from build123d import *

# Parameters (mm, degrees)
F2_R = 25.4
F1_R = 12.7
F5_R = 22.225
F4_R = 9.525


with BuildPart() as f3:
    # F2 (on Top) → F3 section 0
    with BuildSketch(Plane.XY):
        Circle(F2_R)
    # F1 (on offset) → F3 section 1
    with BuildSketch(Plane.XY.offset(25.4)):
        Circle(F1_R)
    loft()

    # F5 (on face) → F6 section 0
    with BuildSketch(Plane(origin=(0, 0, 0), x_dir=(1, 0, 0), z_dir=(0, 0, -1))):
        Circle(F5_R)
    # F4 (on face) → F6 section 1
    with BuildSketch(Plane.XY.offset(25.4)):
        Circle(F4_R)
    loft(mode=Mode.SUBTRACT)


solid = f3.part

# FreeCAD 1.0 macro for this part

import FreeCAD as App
import Part
import Sketcher
Q = App.Units.Quantity

doc = App.newDocument("Part")
body = doc.addObject("PartDesign::Body", "Body")

# Sketch on XY plane
sketch1 = body.newObject("Sketcher::SketchObject", "Sketch")
sketch1.AttachmentSupport = (doc.getObject("XY_Plane"), [""])
sketch1.MapMode = "FlatFace"
sketch1.addGeometry(Part.Circle(App.Vector(0, 0, 0), App.Vector(0, 0, 1), 25), False)
sketch1.addConstraint(Sketcher.Constraint("Coincident", 0, 3, -1, 1))
sketch1.addConstraint(Sketcher.Constraint("Diameter", 0, Q("2 in")))

# Sketch on XY plane
sketch2 = body.newObject("Sketcher::SketchObject", "Sketch001")
sketch2.AttachmentSupport = (doc.getObject("XY_Plane"), [""])
sketch2.MapMode = "FlatFace"
sketch2.AttachmentOffset = App.Placement(App.Vector(0, 0, 1 * 25.4), App.Rotation())
sketch2.addGeometry(Part.Circle(App.Vector(0, 0, 0), App.Vector(0, 0, 1), 13), False)
sketch2.addConstraint(Sketcher.Constraint("Coincident", 0, 3, -1, 1))
sketch2.addConstraint(Sketcher.Constraint("Diameter", 0, Q("1 in")))

additiveloft = body.newObject("PartDesign::AdditiveLoft", "AdditiveLoft")
additiveloft.Profile = sketch1
additiveloft.Sections = [sketch2]

# Sketch on XY plane
sketch3 = body.newObject("Sketcher::SketchObject", "Sketch002")
sketch3.AttachmentSupport = (doc.getObject("XY_Plane"), [""])
sketch3.MapMode = "FlatFace"
sketch3.addGeometry(Part.Circle(App.Vector(0, 0, 0), App.Vector(0, 0, 1), 22), False)
sketch3.addConstraint(Sketcher.Constraint("Coincident", 0, 3, -1, 1))
sketch3.addConstraint(Sketcher.Constraint("Diameter", 0, Q("1.75 in")))

# Sketch on XY plane
sketch4 = body.newObject("Sketcher::SketchObject", "Sketch003")
sketch4.AttachmentSupport = (doc.getObject("XY_Plane"), [""])
sketch4.MapMode = "FlatFace"
sketch4.AttachmentOffset = App.Placement(App.Vector(0, 0, 1 * 25.4), App.Rotation())
sketch4.addGeometry(Part.Circle(App.Vector(0, 0, 0), App.Vector(0, 0, 1), 10), False)
sketch4.addConstraint(Sketcher.Constraint("Coincident", 0, 3, -1, 1))
sketch4.addConstraint(Sketcher.Constraint("Diameter", 0, Q("0.75 in")))

subtractiveloft = body.newObject("PartDesign::SubtractiveLoft", "SubtractiveLoft")
subtractiveloft.Profile = sketch3
subtractiveloft.Sections = [sketch4]

doc.recompute()
